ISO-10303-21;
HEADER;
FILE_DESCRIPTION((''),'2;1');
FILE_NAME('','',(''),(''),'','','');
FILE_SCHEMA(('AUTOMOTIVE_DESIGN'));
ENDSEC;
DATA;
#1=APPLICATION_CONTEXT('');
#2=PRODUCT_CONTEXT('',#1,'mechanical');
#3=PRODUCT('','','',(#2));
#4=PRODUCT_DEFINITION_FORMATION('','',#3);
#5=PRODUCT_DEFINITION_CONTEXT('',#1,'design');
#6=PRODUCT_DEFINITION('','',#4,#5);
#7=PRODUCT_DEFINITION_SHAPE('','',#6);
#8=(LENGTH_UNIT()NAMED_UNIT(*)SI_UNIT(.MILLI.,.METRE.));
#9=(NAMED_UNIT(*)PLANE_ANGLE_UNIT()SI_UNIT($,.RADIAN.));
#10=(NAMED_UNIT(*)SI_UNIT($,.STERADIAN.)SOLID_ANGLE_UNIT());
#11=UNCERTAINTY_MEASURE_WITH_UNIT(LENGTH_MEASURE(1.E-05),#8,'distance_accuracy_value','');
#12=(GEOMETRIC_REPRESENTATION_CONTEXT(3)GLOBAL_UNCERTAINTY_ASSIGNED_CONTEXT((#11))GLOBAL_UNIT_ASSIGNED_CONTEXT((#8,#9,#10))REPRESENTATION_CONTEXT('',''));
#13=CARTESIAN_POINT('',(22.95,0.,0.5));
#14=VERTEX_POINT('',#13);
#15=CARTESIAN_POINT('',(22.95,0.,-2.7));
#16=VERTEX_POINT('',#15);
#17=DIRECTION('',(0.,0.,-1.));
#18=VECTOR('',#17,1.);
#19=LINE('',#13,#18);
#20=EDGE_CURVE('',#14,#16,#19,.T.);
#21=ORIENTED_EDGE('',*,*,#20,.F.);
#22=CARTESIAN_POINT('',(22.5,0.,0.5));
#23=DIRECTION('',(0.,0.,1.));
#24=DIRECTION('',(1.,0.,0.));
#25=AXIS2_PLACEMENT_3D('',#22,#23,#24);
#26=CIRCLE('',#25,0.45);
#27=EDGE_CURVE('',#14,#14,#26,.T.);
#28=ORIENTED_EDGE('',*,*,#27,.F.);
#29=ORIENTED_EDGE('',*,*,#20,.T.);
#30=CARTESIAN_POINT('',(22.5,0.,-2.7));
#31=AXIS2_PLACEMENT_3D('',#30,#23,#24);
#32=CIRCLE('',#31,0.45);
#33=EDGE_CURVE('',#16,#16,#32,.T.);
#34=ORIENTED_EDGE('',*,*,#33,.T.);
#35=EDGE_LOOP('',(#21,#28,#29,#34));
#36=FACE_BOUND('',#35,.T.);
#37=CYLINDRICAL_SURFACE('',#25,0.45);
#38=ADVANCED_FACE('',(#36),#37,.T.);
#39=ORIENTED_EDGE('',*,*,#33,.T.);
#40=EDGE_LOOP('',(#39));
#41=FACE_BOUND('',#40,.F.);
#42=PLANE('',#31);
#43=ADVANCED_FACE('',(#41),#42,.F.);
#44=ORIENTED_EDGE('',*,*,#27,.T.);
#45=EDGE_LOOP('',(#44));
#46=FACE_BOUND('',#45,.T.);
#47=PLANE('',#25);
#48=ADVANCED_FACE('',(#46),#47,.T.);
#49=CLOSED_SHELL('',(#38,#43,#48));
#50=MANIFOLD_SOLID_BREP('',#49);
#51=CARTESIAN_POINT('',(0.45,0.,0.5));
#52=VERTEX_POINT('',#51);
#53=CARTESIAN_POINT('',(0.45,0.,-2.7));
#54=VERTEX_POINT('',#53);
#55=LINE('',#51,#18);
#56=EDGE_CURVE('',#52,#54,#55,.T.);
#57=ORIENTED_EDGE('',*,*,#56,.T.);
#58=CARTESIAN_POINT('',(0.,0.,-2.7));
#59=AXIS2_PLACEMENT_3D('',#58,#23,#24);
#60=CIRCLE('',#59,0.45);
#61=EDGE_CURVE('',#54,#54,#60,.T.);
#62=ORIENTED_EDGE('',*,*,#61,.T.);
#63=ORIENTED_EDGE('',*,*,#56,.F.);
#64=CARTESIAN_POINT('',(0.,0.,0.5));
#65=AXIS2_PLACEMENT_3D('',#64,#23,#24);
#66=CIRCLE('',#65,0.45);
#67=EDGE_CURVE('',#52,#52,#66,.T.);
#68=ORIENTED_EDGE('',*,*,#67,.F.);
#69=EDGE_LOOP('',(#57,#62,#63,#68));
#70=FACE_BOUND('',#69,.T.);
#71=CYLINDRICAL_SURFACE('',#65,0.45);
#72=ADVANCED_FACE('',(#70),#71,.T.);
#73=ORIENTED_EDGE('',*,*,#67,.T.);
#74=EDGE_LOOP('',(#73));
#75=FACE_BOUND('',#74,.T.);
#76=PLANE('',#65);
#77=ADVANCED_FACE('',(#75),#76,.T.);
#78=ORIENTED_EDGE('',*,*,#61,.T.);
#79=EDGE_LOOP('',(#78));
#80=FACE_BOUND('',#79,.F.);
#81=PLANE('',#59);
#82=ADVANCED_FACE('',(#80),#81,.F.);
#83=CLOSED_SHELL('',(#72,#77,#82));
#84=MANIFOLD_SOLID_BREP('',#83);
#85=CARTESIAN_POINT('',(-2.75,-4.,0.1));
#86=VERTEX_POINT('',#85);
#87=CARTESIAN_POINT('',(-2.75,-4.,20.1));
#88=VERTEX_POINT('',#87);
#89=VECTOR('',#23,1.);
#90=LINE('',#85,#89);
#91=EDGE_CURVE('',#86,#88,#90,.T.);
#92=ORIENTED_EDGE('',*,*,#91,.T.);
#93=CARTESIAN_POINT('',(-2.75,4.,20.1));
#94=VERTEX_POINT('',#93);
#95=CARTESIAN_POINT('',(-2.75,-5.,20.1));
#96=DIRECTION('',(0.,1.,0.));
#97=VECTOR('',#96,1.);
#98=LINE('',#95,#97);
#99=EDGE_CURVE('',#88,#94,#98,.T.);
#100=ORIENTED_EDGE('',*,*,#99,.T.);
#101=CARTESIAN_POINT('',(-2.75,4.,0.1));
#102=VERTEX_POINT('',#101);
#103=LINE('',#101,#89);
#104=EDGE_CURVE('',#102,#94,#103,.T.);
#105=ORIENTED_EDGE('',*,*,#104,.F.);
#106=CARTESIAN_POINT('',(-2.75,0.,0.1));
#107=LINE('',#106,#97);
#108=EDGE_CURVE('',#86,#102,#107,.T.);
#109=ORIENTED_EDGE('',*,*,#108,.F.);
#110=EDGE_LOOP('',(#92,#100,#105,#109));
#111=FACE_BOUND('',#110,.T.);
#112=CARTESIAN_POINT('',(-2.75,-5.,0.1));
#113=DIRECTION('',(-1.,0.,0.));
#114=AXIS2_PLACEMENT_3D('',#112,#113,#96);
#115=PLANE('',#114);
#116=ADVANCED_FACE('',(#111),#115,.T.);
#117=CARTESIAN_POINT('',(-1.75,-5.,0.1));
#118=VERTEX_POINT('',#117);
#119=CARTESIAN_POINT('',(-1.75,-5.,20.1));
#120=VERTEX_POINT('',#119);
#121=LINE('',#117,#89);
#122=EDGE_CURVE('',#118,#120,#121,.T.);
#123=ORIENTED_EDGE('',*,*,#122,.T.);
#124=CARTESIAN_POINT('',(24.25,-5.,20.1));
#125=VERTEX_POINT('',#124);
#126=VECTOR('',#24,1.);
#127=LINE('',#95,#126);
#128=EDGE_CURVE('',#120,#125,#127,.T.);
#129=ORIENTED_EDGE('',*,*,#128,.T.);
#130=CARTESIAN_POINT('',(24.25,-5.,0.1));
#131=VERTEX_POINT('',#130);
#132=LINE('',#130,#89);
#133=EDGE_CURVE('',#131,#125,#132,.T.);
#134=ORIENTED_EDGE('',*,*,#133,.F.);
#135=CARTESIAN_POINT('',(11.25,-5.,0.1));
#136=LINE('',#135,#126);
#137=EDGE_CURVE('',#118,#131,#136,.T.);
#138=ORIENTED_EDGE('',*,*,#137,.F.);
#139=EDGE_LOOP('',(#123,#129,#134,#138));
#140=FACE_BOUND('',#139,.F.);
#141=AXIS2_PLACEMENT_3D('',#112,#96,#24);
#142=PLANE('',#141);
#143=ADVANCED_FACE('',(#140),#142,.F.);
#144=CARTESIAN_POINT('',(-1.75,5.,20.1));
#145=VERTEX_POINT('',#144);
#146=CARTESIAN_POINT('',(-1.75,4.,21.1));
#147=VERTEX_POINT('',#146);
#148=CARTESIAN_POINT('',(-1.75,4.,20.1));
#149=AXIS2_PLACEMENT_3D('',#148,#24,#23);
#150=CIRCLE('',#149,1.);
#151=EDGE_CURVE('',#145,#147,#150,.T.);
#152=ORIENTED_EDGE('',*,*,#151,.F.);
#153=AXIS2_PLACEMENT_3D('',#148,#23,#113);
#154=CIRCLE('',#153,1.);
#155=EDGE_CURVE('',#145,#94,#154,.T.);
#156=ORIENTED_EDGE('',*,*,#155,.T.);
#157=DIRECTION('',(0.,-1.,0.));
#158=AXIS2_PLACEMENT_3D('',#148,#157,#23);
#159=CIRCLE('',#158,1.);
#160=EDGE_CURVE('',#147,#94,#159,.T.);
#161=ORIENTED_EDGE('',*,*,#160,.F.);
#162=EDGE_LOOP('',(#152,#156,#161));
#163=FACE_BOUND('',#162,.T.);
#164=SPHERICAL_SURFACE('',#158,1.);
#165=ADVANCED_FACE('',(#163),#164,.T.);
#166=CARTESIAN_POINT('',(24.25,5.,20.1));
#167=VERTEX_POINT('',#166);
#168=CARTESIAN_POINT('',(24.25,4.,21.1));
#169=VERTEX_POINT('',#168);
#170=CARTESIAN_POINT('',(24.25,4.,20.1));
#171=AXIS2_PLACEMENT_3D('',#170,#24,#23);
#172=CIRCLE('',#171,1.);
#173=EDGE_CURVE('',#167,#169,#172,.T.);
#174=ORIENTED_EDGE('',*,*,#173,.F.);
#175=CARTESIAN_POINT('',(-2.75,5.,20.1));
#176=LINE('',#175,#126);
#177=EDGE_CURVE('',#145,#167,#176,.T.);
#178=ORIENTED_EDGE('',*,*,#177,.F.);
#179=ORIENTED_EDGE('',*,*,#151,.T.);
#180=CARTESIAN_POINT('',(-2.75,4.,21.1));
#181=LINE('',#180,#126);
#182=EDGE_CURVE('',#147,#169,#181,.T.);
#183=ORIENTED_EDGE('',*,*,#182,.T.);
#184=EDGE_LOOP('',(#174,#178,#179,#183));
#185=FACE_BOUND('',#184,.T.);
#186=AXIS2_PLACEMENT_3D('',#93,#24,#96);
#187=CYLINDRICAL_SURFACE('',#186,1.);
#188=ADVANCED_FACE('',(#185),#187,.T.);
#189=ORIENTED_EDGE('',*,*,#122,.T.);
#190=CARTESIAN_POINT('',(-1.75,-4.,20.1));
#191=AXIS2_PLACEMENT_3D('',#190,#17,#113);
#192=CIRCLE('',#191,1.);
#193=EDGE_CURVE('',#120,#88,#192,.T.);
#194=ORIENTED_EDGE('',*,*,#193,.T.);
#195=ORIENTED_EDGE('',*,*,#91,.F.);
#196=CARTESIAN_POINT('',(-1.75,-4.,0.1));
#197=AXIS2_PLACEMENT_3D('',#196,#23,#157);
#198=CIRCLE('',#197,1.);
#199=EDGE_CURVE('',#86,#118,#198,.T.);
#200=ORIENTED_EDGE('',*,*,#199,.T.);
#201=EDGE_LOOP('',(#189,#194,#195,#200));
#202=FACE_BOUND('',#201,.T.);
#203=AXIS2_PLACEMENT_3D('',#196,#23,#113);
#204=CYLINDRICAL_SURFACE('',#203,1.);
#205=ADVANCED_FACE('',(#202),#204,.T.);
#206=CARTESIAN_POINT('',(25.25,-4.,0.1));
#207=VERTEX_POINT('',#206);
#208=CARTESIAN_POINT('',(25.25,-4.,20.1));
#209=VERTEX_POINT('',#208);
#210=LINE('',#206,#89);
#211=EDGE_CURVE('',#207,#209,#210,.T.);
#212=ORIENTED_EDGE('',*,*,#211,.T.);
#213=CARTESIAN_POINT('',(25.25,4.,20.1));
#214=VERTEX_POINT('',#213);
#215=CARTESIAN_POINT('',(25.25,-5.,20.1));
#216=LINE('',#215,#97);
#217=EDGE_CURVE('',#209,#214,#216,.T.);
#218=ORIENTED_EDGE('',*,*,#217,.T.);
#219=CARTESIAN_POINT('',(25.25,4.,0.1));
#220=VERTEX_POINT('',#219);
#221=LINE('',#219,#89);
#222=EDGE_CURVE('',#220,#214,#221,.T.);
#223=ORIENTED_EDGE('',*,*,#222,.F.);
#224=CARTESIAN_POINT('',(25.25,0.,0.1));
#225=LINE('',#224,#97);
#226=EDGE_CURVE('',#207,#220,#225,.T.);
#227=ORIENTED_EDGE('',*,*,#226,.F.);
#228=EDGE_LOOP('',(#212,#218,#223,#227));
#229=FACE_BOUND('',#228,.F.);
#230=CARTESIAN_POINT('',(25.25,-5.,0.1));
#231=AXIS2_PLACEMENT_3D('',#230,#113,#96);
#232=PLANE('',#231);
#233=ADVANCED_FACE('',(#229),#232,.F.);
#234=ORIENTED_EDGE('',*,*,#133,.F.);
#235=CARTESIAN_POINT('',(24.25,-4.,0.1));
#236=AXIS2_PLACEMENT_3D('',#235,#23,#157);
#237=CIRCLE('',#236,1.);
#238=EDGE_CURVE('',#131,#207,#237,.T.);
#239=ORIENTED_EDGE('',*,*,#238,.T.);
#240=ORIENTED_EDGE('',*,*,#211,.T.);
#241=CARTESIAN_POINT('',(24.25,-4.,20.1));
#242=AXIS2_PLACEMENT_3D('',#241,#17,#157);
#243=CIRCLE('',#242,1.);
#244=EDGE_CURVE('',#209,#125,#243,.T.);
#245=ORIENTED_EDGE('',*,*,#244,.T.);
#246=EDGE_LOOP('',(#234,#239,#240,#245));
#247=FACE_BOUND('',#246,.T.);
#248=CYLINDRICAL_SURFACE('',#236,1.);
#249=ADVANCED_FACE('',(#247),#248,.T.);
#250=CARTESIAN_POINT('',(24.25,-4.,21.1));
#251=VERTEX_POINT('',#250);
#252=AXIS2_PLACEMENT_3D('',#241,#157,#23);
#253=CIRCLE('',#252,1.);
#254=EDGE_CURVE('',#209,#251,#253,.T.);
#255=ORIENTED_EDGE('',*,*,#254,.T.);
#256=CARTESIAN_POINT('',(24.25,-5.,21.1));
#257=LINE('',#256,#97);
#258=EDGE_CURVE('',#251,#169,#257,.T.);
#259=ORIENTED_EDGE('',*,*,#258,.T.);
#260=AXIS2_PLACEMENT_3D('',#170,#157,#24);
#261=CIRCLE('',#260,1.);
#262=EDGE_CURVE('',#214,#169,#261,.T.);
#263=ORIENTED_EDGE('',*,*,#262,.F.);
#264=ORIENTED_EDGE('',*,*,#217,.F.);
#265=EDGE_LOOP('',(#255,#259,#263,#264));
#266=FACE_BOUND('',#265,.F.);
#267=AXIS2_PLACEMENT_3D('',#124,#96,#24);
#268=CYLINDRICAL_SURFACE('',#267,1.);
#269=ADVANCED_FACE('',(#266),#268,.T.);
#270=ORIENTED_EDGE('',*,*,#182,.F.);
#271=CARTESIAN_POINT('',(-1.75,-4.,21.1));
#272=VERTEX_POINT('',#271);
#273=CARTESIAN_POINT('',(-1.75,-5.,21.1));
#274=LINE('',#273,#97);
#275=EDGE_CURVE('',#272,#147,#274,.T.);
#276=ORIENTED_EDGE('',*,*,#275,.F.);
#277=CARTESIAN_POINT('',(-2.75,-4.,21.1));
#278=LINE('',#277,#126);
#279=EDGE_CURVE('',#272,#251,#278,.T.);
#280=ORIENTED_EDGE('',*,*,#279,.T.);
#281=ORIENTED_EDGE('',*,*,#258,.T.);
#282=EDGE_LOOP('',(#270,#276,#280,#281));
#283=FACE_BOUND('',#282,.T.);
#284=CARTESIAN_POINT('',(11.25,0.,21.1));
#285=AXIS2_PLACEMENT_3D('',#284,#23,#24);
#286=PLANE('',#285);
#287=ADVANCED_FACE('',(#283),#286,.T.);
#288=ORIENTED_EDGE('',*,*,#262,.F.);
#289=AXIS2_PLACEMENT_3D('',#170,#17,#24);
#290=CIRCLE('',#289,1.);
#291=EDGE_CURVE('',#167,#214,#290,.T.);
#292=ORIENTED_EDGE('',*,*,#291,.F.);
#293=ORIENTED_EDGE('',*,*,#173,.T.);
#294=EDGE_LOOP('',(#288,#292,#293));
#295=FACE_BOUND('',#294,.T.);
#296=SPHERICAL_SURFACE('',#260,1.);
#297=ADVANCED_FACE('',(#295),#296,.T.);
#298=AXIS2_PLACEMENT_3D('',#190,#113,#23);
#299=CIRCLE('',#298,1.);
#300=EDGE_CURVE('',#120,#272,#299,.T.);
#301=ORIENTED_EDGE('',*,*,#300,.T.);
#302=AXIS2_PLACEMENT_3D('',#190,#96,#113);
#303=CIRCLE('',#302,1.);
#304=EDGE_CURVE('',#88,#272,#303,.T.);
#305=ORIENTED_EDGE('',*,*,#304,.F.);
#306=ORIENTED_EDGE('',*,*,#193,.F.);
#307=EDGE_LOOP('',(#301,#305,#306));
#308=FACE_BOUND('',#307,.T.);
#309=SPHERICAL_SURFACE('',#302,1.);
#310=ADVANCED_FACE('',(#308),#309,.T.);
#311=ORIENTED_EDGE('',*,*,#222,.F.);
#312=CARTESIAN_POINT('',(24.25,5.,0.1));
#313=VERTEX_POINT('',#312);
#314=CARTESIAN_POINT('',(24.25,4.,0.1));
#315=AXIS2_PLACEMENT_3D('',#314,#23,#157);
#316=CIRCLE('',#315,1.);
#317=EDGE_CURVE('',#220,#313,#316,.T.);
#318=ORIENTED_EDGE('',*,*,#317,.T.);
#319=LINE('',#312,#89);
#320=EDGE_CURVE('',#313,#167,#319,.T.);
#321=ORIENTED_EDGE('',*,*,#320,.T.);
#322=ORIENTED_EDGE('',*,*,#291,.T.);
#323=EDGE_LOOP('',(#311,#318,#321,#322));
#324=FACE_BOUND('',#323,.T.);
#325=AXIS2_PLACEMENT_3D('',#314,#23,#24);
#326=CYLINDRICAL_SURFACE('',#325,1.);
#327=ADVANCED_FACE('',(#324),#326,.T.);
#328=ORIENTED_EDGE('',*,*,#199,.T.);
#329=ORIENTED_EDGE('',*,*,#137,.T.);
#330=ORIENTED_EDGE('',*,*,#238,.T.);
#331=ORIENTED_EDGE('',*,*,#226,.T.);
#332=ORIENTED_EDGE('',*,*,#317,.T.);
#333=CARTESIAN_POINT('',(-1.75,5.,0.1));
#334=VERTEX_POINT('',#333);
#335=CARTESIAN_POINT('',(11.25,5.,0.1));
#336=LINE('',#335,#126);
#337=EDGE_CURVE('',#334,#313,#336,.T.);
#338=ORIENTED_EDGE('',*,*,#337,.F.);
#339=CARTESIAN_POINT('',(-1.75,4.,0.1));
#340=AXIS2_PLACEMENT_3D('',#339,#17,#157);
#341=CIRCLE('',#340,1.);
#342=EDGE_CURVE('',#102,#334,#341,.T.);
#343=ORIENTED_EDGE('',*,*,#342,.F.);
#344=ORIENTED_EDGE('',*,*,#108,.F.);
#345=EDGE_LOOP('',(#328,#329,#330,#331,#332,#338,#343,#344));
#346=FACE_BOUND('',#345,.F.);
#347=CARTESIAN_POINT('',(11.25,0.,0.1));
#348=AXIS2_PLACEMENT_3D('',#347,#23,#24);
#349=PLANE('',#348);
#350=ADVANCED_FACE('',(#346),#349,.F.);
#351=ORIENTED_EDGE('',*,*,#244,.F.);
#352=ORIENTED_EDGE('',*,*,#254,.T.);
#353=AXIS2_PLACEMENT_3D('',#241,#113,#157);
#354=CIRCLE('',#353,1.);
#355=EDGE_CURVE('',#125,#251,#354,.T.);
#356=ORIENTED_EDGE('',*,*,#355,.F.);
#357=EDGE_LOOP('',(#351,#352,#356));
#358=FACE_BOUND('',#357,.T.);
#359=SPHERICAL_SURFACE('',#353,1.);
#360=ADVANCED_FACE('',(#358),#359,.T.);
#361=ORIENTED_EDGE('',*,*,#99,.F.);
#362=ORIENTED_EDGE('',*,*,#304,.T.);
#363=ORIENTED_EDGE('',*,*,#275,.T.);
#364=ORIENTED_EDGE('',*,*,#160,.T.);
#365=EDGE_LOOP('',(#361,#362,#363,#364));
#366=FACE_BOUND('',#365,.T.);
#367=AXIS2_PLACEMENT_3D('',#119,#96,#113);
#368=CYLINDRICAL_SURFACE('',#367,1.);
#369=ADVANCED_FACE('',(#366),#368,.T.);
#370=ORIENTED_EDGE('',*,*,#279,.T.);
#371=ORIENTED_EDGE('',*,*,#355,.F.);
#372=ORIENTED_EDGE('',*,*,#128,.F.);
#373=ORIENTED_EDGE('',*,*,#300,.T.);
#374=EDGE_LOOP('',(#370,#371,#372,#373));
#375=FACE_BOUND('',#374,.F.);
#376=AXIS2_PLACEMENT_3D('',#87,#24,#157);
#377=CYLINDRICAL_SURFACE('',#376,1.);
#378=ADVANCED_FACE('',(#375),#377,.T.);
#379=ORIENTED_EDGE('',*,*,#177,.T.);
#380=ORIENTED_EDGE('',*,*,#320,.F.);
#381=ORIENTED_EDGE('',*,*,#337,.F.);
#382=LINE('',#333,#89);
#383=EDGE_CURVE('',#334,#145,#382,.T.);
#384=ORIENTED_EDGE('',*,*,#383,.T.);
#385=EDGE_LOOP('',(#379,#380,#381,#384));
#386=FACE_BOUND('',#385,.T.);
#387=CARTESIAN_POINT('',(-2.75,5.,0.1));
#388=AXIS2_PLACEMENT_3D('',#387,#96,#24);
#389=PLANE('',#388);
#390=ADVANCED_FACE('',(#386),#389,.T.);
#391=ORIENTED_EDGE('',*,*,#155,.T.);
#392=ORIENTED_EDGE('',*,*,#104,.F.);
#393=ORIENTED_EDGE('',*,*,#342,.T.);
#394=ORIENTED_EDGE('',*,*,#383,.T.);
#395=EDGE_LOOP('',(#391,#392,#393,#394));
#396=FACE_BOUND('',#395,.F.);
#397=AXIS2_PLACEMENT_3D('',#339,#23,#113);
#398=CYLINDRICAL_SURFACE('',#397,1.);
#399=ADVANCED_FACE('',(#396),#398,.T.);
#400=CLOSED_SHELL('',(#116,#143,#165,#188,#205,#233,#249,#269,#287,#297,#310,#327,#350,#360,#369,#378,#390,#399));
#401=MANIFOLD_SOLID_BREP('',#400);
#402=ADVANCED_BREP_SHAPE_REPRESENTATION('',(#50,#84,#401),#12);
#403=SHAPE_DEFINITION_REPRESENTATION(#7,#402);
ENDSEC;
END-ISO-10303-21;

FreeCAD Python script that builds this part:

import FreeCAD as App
import Part
import Sketcher
Q = App.Units.Quantity


def edges_at(feature, points):
    """Names of the edges that pass closest to the given points."""
    edges = feature.Shape.Edges
    near = lambda p: min(range(len(edges)), key=lambda i: edges[i].distToShape(Part.Vertex(*p))[0])
    return sorted({f"Edge{near(p) + 1}" for p in points})

doc = App.newDocument("Part")
params = doc.addObject("Spreadsheet::Sheet", "Params")
for row, (alias, value) in enumerate([
    ("sketch1_width", "28 mm"),
    ("sketch1_height", "10 mm"),
    ("pad1_length", "21 mm"),
    ("fillet_radius", "1 mm"),
    ("sketch2_diameter", "0.9 mm"),
    ("pad2_length", "3.2 mm"),
], start=1):
    params.set(f"A{row}", alias)
    params.set(f"B{row}", "=" + value)
    params.setAlias(f"B{row}", alias)

body = doc.addObject("PartDesign::Body", "Body")

# Sketch on XY plane
sketch1 = doc.addObject("Sketcher::SketchObject", "Sketch")
body.addObject(sketch1)
sketch1.AttachmentSupport = (doc.XY_Plane, [""])
sketch1.MapMode = "FlatFace"
sketch1.AttachmentOffset = App.Placement(App.Vector(0, 0, 0.1), App.Rotation())
sketch1.addGeometry([
    Part.LineSegment(App.Vector(-3, 5, 0), App.Vector(-3, -5, 0)),
    Part.LineSegment(App.Vector(-3, -5, 0), App.Vector(25, -5, 0)),
    Part.LineSegment(App.Vector(25, -5, 0), App.Vector(25, 5, 0)),
    Part.LineSegment(App.Vector(25, 5, 0), App.Vector(-3, 5, 0)),
], False)
sketch1.addConstraint([
    Sketcher.Constraint("Coincident", 0, 2, 1, 1),
    Sketcher.Constraint("Coincident", 1, 2, 2, 1),
    Sketcher.Constraint("Coincident", 2, 2, 3, 1),
    Sketcher.Constraint("Coincident", 3, 2, 0, 1),
    Sketcher.Constraint("Vertical", 0),
    Sketcher.Constraint("Horizontal", 1),
    Sketcher.Constraint("Vertical", 2),
    Sketcher.Constraint("Horizontal", 3),
    Sketcher.Constraint("DistanceX", 1, 1, 1, 2, Q("28 mm")),
    Sketcher.Constraint("DistanceY", 0, 2, 0, 1, Q("10 mm")),
    Sketcher.Constraint("DistanceY", 0, 2, -1, 1, Q("5 mm")),
    Sketcher.Constraint("DistanceX", 0, 2, -1, 1, Q("2.75 mm")),
])
sketch1.setExpression("Constraints[8]", "Params.sketch1_width")
sketch1.setExpression("Constraints[9]", "Params.sketch1_height")
pad1 = doc.addObject("PartDesign::Pad", "Pad")
body.addObject(pad1)
pad1.Profile = sketch1
pad1.setExpression("Length", "Params.pad1_length")
doc.recompute()

fillet = doc.addObject("PartDesign::Fillet", "Fillet")
body.addObject(fillet)
fillet.Base = (pad1, edges_at(pad1, [
    (-2.75, 0, 21.1),
    (-2.75, -5, 10.6),
    (11.25, -5, 21.1),
    (25.25, -5, 10.6),
    (25.25, 0, 21.1),
    (25.25, 5, 10.6),
    (11.25, 5, 21.1),
    (-2.75, 5, 10.6),
]))
fillet.setExpression("Radius", "Params.fillet_radius")
body2 = doc.addObject("PartDesign::Body", "Body001")
body2.AllowCompound = True

# Sketch on XY plane
sketch2 = doc.addObject("Sketcher::SketchObject", "Sketch001")
body2.addObject(sketch2)
sketch2.AttachmentSupport = (doc.getObject("XY_Plane001"), [""])
sketch2.MapMode = "FlatFace"
sketch2.AttachmentOffset = App.Placement(App.Vector(0, 0, 0.5), App.Rotation())
sketch2.addGeometry([
    Part.Circle(App.Vector(0, 0, 0), App.Vector(0, 0, 1), 0.45),
    Part.Circle(App.Vector(22.5, 0, 0), App.Vector(0, 0, 1), 0.45),
], False)
sketch2.addConstraint([
    Sketcher.Constraint("Coincident", 0, 3, -1, 1),
    Sketcher.Constraint("Equal", 0, 1),
    Sketcher.Constraint("PointOnObject", 1, 3, -1),
    Sketcher.Constraint("Diameter", 0, Q("0.9 mm")),
    Sketcher.Constraint("DistanceX", -1, 1, 1, 3, Q("22.5 mm")),
])
sketch2.setExpression("Constraints[3]", "Params.sketch2_diameter")
pad2 = doc.addObject("PartDesign::Pad", "Pad001")
body2.addObject(pad2)
pad2.Profile = sketch2
pad2.setExpression("Length", "Params.pad2_length")
pad2.Reversed = True

doc.recompute()
